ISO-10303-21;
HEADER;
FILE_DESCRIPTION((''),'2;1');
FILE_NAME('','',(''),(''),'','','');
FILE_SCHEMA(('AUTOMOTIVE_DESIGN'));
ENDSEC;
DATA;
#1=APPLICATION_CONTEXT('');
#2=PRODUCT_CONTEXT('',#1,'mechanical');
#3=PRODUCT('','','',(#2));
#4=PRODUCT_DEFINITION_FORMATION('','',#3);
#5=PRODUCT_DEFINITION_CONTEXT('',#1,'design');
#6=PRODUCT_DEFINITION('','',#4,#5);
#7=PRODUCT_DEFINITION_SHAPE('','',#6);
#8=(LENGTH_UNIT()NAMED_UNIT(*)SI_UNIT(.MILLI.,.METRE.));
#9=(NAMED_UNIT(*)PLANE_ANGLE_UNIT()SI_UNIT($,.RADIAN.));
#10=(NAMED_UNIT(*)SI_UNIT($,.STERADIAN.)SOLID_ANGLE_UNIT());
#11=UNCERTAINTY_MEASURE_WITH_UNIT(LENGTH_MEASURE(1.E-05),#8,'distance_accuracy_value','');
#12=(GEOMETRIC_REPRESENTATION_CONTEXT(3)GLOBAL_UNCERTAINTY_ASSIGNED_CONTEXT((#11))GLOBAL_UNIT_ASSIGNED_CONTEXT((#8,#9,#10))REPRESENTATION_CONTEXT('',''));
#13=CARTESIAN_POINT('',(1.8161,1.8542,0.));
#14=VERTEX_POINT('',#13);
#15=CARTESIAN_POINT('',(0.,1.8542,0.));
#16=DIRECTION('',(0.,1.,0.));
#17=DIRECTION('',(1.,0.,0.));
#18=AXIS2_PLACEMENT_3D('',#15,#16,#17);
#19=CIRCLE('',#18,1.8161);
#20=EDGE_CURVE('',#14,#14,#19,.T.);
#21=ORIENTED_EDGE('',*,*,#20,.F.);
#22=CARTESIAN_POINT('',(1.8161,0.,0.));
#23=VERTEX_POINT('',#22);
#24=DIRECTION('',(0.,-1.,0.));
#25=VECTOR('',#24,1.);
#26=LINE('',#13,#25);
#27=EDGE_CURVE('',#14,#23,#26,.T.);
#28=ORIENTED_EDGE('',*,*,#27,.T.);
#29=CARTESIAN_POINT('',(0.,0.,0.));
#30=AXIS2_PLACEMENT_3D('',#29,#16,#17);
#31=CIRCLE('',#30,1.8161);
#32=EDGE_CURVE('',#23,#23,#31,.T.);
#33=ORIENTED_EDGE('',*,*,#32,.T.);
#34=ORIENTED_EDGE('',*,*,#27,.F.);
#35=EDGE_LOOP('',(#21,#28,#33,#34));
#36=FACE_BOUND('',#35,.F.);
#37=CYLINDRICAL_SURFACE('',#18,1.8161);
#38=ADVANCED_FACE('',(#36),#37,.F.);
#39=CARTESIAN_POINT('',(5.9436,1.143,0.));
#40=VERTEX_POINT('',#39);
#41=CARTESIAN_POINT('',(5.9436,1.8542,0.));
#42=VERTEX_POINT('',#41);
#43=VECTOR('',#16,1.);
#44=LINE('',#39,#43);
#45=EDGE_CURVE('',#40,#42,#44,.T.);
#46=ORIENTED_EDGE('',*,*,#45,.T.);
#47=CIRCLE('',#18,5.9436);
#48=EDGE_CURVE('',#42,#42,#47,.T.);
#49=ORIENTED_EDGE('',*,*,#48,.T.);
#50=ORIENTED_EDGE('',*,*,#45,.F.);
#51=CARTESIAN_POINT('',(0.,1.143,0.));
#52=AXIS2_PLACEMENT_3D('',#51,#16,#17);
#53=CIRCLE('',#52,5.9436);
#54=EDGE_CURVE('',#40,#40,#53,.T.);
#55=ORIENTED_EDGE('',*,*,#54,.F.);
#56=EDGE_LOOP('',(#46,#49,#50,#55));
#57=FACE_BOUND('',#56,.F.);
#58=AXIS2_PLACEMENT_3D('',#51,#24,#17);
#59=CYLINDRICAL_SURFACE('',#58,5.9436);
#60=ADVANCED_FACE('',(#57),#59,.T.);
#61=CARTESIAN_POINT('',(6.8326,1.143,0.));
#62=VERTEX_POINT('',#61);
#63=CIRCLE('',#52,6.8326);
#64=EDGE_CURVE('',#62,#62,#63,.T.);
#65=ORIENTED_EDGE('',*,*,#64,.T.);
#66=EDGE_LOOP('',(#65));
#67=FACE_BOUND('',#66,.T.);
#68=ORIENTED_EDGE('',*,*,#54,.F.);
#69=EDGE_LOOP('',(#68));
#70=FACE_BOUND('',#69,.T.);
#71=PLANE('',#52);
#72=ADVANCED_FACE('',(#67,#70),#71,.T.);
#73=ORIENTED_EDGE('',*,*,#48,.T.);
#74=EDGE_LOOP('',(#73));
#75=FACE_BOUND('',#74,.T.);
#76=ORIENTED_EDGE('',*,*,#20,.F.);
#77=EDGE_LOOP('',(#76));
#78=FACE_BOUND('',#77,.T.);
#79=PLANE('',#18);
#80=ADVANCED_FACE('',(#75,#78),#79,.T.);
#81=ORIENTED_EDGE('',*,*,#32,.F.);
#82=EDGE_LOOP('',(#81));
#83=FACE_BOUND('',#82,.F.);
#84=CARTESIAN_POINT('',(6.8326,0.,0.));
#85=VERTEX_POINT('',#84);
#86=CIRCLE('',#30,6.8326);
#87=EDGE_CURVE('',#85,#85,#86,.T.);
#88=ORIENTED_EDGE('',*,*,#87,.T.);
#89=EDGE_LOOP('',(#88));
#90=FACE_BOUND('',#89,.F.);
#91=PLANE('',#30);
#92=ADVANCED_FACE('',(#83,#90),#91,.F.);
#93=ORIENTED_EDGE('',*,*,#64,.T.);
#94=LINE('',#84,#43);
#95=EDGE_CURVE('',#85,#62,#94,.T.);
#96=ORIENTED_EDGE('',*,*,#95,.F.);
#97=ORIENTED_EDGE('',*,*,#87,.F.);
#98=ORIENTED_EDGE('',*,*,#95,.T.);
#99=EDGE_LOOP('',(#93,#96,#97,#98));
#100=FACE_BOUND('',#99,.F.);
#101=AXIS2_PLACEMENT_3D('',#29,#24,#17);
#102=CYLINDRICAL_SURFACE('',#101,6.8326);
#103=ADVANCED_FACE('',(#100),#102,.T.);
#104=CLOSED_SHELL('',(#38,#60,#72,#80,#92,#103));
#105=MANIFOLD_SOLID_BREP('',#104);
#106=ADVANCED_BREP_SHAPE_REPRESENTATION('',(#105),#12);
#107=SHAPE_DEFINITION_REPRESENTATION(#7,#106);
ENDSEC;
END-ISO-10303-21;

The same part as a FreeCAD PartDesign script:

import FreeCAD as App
import Part
import Sketcher

V = App.Vector
Q = App.Units.Quantity

doc = App.newDocument("Part")
body = doc.addObject("PartDesign::Body", "Body")

# Sketch on XZ plane
sketch1 = body.newObject("Sketcher::SketchObject", "Sketch")
sketch1.AttachmentSupport = (doc.getObject("XZ_Plane"), [""])
sketch1.MapMode = "FlatFace"
sketch1.addGeometry(Part.Circle(V(0, 0, 0), V(0, 0, 1), 6.8326), False)
sketch1.addConstraint([
    Sketcher.Constraint("Coincident", 0, 3, -1, 1),
    Sketcher.Constraint("Diameter", 0, Q("0.538 in")),
])
pad1 = body.newObject("PartDesign::Pad", "Pad")
pad1.Profile = sketch1
pad1.Length = Q("0.045 in")
pad1.Reversed = True

# Sketch on XZ plane
sketch2 = body.newObject("Sketcher::SketchObject", "Sketch001")
sketch2.AttachmentSupport = (doc.getObject("XZ_Plane"), [""])
sketch2.MapMode = "FlatFace"
sketch2.AttachmentOffset = App.Placement(V(0, 0, -0.045 * 25.4), App.Rotation())
sketch2.addGeometry(Part.Circle(V(0, 0, 0), V(0, 0, 1), 5.9436), False)
sketch2.addConstraint([
    Sketcher.Constraint("Coincident", 0, 3, -1, 1),
    Sketcher.Constraint("Diameter", 0, Q("0.468 in")),
])
pad2 = body.newObject("PartDesign::Pad", "Pad001")
pad2.Profile = sketch2
pad2.Length = Q("0.028 in")
pad2.Reversed = True

# Sketch on XZ plane
sketch3 = body.newObject("Sketcher::SketchObject", "Sketch002")
sketch3.AttachmentSupport = (doc.getObject("XZ_Plane"), [""])
sketch3.MapMode = "FlatFace"
sketch3.AttachmentOffset = App.Placement(V(0, 0, -0.073 * 25.4), App.Rotation())
sketch3.addGeometry(Part.Circle(V(0, 0, 0), V(0, 0, 1), 1.8161), False)
sketch3.addConstraint([
    Sketcher.Constraint("Coincident", 0, 3, -1, 1),
    Sketcher.Constraint("Diameter", 0, Q("0.143 in")),
])
pocket1 = body.newObject("PartDesign::Pocket", "Pocket")
pocket1.Profile = sketch3
pocket1.Type = "ThroughAll"
pocket1.Reversed = True

doc.recompute()
